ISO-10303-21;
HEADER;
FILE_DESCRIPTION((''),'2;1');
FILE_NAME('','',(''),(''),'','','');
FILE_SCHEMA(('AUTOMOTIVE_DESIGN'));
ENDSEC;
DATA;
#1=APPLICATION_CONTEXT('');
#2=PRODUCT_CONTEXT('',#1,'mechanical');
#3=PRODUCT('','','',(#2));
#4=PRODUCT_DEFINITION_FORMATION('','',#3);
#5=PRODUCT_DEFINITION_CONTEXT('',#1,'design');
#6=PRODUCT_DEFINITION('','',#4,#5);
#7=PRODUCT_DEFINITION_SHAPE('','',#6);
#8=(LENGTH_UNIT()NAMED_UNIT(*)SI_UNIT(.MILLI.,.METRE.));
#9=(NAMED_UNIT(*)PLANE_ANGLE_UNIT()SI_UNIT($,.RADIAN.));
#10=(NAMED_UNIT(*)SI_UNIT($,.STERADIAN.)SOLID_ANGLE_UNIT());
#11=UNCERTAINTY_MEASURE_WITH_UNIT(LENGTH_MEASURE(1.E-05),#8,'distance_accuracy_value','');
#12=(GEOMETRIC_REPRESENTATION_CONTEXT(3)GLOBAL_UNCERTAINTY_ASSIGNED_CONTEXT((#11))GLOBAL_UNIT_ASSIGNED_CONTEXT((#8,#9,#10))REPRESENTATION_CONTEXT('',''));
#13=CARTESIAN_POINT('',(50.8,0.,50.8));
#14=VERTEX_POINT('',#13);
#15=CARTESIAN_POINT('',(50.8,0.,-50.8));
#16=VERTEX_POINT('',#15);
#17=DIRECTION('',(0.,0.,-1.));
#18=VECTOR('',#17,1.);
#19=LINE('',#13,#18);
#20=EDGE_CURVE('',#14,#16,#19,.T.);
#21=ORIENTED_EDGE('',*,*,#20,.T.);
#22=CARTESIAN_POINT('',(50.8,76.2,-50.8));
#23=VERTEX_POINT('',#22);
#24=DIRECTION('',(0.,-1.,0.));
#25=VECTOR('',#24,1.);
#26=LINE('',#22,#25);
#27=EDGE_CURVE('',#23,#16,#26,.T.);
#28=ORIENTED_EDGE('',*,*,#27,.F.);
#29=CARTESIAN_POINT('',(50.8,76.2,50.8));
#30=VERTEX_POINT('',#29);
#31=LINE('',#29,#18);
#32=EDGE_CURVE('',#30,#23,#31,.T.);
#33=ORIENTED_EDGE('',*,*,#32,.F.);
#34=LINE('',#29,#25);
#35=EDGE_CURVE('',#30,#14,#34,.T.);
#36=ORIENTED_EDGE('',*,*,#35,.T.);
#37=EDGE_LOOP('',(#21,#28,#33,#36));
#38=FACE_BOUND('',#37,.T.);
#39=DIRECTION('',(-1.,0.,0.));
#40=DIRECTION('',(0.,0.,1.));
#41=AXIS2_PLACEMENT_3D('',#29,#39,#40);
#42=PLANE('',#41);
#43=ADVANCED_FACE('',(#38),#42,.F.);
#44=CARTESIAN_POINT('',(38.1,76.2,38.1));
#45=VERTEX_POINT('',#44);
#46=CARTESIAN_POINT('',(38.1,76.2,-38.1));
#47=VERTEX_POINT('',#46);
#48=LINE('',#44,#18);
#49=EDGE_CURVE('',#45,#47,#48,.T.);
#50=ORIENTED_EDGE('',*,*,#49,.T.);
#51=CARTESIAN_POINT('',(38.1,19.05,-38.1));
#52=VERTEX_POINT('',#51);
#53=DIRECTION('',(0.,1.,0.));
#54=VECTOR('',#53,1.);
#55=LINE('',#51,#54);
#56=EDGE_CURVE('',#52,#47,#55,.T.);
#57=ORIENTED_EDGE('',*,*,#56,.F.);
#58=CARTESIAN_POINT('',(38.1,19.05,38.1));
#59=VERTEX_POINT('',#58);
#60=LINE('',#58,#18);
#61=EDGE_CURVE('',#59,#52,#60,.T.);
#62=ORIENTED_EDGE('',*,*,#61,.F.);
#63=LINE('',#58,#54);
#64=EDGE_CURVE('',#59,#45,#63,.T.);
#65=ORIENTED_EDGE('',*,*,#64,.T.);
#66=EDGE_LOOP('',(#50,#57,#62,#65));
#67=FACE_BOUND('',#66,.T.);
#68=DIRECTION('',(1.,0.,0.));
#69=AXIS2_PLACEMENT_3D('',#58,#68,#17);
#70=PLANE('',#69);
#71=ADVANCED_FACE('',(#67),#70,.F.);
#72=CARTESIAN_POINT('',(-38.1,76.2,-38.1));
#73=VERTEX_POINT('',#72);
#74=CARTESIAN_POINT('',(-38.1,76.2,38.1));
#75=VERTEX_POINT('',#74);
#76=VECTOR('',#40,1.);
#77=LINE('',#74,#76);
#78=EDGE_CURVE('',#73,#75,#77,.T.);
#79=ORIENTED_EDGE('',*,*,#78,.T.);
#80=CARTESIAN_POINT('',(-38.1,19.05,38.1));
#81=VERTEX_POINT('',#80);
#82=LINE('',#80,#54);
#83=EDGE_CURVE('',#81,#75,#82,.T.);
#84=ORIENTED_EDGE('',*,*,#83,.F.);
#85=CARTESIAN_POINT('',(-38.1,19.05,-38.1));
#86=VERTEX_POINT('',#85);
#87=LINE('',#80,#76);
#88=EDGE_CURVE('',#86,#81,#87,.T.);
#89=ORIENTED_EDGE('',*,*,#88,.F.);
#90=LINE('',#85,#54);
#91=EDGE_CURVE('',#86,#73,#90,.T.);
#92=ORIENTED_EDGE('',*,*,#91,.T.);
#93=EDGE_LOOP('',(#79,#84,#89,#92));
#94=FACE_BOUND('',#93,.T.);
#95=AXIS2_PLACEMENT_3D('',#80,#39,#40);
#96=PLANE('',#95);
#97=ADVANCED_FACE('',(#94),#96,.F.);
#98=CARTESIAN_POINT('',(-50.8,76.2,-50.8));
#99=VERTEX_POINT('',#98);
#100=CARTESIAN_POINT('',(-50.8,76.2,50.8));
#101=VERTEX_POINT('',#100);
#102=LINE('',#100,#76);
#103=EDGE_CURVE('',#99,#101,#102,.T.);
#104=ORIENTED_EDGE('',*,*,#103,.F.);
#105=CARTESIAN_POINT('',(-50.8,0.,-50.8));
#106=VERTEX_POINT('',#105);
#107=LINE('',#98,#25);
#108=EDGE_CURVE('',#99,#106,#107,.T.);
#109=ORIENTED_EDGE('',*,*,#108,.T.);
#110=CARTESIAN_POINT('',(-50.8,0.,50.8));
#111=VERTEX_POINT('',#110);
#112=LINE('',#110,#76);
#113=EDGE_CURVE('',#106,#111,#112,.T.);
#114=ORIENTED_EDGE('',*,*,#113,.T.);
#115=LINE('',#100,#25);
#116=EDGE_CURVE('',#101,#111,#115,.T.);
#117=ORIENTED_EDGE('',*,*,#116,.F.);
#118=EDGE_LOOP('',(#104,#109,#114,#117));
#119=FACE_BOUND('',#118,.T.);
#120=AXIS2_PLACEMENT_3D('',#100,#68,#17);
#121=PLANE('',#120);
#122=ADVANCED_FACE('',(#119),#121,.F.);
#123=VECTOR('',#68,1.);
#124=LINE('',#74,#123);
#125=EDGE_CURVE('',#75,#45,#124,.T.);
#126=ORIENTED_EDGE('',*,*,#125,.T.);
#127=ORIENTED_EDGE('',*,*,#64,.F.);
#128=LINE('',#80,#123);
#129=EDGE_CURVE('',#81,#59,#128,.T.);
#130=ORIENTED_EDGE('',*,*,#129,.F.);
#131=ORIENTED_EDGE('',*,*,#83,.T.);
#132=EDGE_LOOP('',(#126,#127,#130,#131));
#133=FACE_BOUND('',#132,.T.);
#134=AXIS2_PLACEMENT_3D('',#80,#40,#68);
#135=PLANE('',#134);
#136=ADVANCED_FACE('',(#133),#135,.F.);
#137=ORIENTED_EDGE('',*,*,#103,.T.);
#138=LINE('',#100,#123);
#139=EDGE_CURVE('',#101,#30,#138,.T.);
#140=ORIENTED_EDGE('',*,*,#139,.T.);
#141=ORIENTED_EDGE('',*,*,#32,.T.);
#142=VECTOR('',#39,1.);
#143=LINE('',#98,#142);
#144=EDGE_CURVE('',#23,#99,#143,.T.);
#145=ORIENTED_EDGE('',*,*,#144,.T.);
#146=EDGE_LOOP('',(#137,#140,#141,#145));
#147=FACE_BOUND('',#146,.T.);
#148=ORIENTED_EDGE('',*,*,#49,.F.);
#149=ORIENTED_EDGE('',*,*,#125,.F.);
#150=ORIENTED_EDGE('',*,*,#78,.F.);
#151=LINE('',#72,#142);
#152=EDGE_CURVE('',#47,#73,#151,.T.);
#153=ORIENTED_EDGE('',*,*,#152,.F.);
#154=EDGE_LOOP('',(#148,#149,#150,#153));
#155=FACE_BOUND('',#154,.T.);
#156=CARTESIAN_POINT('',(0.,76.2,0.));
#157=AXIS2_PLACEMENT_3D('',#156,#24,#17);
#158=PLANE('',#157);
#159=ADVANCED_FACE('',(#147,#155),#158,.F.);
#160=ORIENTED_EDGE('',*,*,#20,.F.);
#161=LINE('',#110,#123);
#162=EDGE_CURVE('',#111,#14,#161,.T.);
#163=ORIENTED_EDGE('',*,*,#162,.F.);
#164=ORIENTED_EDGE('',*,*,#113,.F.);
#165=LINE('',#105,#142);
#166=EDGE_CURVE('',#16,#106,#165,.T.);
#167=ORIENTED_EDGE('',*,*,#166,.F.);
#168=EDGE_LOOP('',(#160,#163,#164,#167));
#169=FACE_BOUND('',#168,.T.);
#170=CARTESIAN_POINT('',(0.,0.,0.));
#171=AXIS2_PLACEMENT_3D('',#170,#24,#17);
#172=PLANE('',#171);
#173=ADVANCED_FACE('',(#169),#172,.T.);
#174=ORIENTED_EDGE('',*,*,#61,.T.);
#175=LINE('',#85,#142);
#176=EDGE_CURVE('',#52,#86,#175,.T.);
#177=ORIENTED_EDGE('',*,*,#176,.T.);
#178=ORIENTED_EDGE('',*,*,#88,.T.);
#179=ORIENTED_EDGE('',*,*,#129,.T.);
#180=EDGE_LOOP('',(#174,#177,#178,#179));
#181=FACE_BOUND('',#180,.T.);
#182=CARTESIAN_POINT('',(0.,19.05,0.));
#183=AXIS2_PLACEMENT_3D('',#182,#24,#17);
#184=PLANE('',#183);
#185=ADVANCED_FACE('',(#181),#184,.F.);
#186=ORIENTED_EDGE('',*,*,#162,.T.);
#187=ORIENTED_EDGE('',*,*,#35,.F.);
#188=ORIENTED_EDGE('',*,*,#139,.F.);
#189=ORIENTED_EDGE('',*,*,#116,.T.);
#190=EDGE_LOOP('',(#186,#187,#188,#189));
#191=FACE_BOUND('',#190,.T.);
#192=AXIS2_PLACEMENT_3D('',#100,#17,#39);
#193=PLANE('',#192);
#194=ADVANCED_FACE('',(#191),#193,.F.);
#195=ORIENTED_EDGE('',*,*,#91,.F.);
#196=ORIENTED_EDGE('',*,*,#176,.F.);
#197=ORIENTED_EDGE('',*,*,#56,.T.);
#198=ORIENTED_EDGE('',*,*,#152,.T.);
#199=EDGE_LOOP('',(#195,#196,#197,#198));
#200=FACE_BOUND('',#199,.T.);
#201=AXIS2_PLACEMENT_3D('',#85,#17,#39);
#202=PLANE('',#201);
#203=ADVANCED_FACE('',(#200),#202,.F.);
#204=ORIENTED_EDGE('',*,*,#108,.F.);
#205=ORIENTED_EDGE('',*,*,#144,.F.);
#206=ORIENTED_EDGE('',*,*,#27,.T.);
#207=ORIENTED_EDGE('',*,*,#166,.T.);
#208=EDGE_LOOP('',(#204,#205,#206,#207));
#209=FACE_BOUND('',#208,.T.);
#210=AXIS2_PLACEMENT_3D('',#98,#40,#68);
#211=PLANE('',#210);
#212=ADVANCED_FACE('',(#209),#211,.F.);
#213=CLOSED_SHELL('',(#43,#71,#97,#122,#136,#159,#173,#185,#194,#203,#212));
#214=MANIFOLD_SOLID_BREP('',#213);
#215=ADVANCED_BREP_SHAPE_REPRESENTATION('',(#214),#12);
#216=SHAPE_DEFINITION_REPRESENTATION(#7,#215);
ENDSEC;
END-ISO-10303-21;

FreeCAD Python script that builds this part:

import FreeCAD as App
import Part
import Sketcher
from FreeCAD import Vector
Q = App.Units.Quantity

doc = App.newDocument("Part")
body = doc.addObject("PartDesign::Body", "Body")

sketch1 = body.newObject("Sketcher::SketchObject", "Sketch")
sketch1.AttachmentSupport = (doc.getObject("XZ_Plane"), [""])
sketch1.MapMode = "FlatFace"
sketch1.addGeometry([
    Part.LineSegment(Vector(-51, -51, 0), Vector(-51, 51, 0)),
    Part.LineSegment(Vector(-51, 51, 0), Vector(51, 51, 0)),
    Part.LineSegment(Vector(51, 51, 0), Vector(51, -51, 0)),
    Part.LineSegment(Vector(51, -51, 0), Vector(-51, -51, 0)),
], False)
sketch1.addConstraint([
    Sketcher.Constraint("Coincident", 0, 2, 1, 1),
    Sketcher.Constraint("Coincident", 1, 2, 2, 1),
    Sketcher.Constraint("Coincident", 2, 2, 3, 1),
    Sketcher.Constraint("Coincident", 3, 2, 0, 1),
    Sketcher.Constraint("Vertical", 0),
    Sketcher.Constraint("Horizontal", 1),
    Sketcher.Constraint("Vertical", 2),
    Sketcher.Constraint("Horizontal", 3),
    Sketcher.Constraint("Symmetric", 0, 2, 2, 2, -1, 1),
    Sketcher.Constraint("Equal", 3, 0),
    Sketcher.Constraint("DistanceX", 1, 1, 1, 2, Q("4 in")),
])
pad1 = body.newObject("PartDesign::Pad", "Pad")
pad1.Profile = sketch1
pad1.Length = Q("3 in")
pad1.Reversed = True

sketch2 = body.newObject("Sketcher::SketchObject", "Sketch001")
sketch2.AttachmentSupport = (doc.getObject("XZ_Plane"), [""])
sketch2.MapMode = "FlatFace"
sketch2.AttachmentOffset = App.Placement(Vector(0, 0, -3 * 25.4), App.Rotation())
sketch2.addGeometry([
    Part.LineSegment(Vector(-38, -38, 0), Vector(-38, 38, 0)),
    Part.LineSegment(Vector(-38, 38, 0), Vector(38, 38, 0)),
    Part.LineSegment(Vector(38, 38, 0), Vector(38, -38, 0)),
    Part.LineSegment(Vector(38, -38, 0), Vector(-38, -38, 0)),
], False)
sketch2.addConstraint([
    Sketcher.Constraint("Coincident", 0, 2, 1, 1),
    Sketcher.Constraint("Coincident", 1, 2, 2, 1),
    Sketcher.Constraint("Coincident", 2, 2, 3, 1),
    Sketcher.Constraint("Coincident", 3, 2, 0, 1),
    Sketcher.Constraint("Vertical", 0),
    Sketcher.Constraint("Horizontal", 1),
    Sketcher.Constraint("Vertical", 2),
    Sketcher.Constraint("Horizontal", 3),
    Sketcher.Constraint("Symmetric", 0, 2, 2, 2, -1, 1),
    Sketcher.Constraint("Equal", 3, 0),
    Sketcher.Constraint("DistanceX", 1, 1, 1, 2, Q("3 in")),
])
pocket1 = body.newObject("PartDesign::Pocket", "Pocket")
pocket1.Profile = sketch2
pocket1.Length = Q("2.25 in")
pocket1.Reversed = True

doc.recompute()
